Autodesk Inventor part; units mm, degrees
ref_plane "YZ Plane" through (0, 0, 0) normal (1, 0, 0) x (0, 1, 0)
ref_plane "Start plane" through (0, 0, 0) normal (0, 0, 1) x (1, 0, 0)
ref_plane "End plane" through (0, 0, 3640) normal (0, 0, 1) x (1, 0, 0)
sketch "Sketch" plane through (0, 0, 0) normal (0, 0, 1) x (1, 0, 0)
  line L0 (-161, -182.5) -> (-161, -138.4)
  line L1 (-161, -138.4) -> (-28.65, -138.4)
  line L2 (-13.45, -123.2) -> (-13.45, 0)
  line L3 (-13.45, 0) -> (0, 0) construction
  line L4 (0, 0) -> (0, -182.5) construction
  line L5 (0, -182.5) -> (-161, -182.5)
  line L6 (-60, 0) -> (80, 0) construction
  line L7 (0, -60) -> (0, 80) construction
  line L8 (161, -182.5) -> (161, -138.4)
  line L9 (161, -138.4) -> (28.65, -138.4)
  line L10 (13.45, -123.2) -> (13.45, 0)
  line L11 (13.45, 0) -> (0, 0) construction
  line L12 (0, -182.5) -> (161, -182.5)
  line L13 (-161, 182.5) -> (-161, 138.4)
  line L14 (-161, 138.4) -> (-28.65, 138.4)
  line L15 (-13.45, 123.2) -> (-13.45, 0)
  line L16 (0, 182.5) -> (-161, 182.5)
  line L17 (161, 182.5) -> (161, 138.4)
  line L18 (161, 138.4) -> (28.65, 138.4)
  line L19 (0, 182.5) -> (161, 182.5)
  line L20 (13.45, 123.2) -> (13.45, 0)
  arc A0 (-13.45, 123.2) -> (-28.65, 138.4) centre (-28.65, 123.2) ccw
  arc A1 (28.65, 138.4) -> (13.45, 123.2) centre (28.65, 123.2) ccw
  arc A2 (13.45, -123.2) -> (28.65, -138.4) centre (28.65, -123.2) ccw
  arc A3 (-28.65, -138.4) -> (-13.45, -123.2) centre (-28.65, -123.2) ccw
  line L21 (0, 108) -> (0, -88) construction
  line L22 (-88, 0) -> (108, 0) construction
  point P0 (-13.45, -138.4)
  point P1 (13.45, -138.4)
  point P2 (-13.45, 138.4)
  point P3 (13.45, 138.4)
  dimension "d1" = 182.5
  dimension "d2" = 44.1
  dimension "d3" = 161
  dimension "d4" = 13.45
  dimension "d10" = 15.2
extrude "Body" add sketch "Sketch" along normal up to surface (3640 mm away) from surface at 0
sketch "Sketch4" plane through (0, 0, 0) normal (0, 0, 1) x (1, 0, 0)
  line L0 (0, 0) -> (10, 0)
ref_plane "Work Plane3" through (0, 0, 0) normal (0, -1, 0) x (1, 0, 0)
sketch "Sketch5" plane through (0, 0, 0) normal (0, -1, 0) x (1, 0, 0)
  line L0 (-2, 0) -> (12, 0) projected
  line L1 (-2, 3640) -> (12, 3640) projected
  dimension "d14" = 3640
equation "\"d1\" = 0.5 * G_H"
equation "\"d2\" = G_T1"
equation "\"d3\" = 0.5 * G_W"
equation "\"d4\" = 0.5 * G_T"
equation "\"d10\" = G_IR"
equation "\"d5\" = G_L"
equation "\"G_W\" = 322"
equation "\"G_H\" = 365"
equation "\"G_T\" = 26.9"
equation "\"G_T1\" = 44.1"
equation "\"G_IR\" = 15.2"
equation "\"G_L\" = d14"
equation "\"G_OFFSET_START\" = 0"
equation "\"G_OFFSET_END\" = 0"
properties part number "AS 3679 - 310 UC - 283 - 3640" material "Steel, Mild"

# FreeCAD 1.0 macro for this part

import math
import FreeCAD as App
import Part
import Sketcher
Q = App.Units.Quantity

doc = App.newDocument("Part")
body = doc.addObject("PartDesign::Body", "Body")

sketch1 = body.newObject("Sketcher::SketchObject", "Sketch")
sketch1.AttachmentSupport = (doc.getObject("XY_Plane"), [""])
sketch1.MapMode = "FlatFace"
sketch1.addGeometry([
    Part.LineSegment(App.Vector(-161, -138.4, 0), App.Vector(-161, -182.5, 0)),
    Part.LineSegment(App.Vector(-161, -182.5, 0), App.Vector(161, -182.5, 0)),
    Part.LineSegment(App.Vector(161, -182.5, 0), App.Vector(161, -138.4, 0)),
    Part.LineSegment(App.Vector(161, -138.4, 0), App.Vector(28.65, -138.4, 0)),
    Part.ArcOfCircle(Part.Circle(App.Vector(28.65, -123.2, 0), App.Vector(0, 0, 1), 15.2), math.radians(180), math.radians(270)),
    Part.LineSegment(App.Vector(13.45, -123.2, 0), App.Vector(13.45, 123.2, 0)),
    Part.ArcOfCircle(Part.Circle(App.Vector(28.65, 123.2, 0), App.Vector(0, 0, 1), 15.2), math.radians(90), math.radians(180)),
    Part.LineSegment(App.Vector(28.65, 138.4, 0), App.Vector(161, 138.4, 0)),
    Part.LineSegment(App.Vector(161, 138.4, 0), App.Vector(161, 182.5, 0)),
    Part.LineSegment(App.Vector(161, 182.5, 0), App.Vector(-161, 182.5, 0)),
    Part.LineSegment(App.Vector(-161, 182.5, 0), App.Vector(-161, 138.4, 0)),
    Part.LineSegment(App.Vector(-161, 138.4, 0), App.Vector(-28.65, 138.4, 0)),
    Part.ArcOfCircle(Part.Circle(App.Vector(-28.65, 123.2, 0), App.Vector(0, 0, 1), 15.2), math.radians(0), math.radians(90)),
    Part.LineSegment(App.Vector(-13.45, 123.2, 0), App.Vector(-13.45, -123.2, 0)),
    Part.ArcOfCircle(Part.Circle(App.Vector(-28.65, -123.2, 0), App.Vector(0, 0, 1), 15.2), math.radians(-90), math.radians(0)),
    Part.LineSegment(App.Vector(-28.65, -138.4, 0), App.Vector(-161, -138.4, 0)),
], False)
sketch1.addConstraint([
    Sketcher.Constraint("Coincident", 0, 2, 1, 1),
    Sketcher.Constraint("Coincident", 1, 2, 2, 1),
    Sketcher.Constraint("Coincident", 2, 2, 3, 1),
    Sketcher.Constraint("Tangent", 3, 2, 4, 2),
    Sketcher.Constraint("Tangent", 4, 1, 5, 1),
    Sketcher.Constraint("Tangent", 5, 2, 6, 2),
    Sketcher.Constraint("Tangent", 6, 1, 7, 1),
    Sketcher.Constraint("Coincident", 7, 2, 8, 1),
    Sketcher.Constraint("Coincident", 8, 2, 9, 1),
    Sketcher.Constraint("Coincident", 9, 2, 10, 1),
    Sketcher.Constraint("Coincident", 10, 2, 11, 1),
    Sketcher.Constraint("Tangent", 11, 2, 12, 2),
    Sketcher.Constraint("Tangent", 12, 1, 13, 1),
    Sketcher.Constraint("Tangent", 13, 2, 14, 2),
    Sketcher.Constraint("Tangent", 14, 1, 15, 1),
    Sketcher.Constraint("Coincident", 15, 2, 0, 1),
    Sketcher.Constraint("Vertical", 0),
    Sketcher.Constraint("Horizontal", 1),
    Sketcher.Constraint("Vertical", 2),
    Sketcher.Constraint("Horizontal", 3),
    Sketcher.Constraint("Vertical", 5),
    Sketcher.Constraint("Horizontal", 7),
    Sketcher.Constraint("Vertical", 8),
    Sketcher.Constraint("Horizontal", 9),
    Sketcher.Constraint("Vertical", 10),
    Sketcher.Constraint("Horizontal", 11),
    Sketcher.Constraint("Vertical", 13),
    Sketcher.Constraint("Horizontal", 15),
    Sketcher.Constraint("Equal", 4, 6),
    Sketcher.Constraint("Equal", 6, 12),
    Sketcher.Constraint("Equal", 12, 14),
    Sketcher.Constraint("Symmetric", 4, 3, 12, 3, -1, 1),
    Sketcher.Constraint("Symmetric", 0, 2, 8, 2, -1, 1),
    Sketcher.Constraint("Symmetric", 7, 2, 10, 2, -2),
    Sketcher.Constraint("Symmetric", 2, 2, 15, 2, -2),
    Sketcher.Constraint("Radius", 4, Q("15.2 mm")),
    Sketcher.Constraint("DistanceY", 0, 2, 0, 1, Q("44.1 mm")),
    Sketcher.Constraint("DistanceX", 0, 2, -1, 1, Q("161 mm")),
    Sketcher.Constraint("DistanceY", 0, 2, -1, 1, Q("182.5 mm")),
    Sketcher.Constraint("DistanceX", -1, 1, 4, 1, Q("13.45 mm")),
])
pad1 = body.newObject("PartDesign::Pad", "Pad")
pad1.Profile = sketch1
pad1.Length = 3640

doc.recompute()
